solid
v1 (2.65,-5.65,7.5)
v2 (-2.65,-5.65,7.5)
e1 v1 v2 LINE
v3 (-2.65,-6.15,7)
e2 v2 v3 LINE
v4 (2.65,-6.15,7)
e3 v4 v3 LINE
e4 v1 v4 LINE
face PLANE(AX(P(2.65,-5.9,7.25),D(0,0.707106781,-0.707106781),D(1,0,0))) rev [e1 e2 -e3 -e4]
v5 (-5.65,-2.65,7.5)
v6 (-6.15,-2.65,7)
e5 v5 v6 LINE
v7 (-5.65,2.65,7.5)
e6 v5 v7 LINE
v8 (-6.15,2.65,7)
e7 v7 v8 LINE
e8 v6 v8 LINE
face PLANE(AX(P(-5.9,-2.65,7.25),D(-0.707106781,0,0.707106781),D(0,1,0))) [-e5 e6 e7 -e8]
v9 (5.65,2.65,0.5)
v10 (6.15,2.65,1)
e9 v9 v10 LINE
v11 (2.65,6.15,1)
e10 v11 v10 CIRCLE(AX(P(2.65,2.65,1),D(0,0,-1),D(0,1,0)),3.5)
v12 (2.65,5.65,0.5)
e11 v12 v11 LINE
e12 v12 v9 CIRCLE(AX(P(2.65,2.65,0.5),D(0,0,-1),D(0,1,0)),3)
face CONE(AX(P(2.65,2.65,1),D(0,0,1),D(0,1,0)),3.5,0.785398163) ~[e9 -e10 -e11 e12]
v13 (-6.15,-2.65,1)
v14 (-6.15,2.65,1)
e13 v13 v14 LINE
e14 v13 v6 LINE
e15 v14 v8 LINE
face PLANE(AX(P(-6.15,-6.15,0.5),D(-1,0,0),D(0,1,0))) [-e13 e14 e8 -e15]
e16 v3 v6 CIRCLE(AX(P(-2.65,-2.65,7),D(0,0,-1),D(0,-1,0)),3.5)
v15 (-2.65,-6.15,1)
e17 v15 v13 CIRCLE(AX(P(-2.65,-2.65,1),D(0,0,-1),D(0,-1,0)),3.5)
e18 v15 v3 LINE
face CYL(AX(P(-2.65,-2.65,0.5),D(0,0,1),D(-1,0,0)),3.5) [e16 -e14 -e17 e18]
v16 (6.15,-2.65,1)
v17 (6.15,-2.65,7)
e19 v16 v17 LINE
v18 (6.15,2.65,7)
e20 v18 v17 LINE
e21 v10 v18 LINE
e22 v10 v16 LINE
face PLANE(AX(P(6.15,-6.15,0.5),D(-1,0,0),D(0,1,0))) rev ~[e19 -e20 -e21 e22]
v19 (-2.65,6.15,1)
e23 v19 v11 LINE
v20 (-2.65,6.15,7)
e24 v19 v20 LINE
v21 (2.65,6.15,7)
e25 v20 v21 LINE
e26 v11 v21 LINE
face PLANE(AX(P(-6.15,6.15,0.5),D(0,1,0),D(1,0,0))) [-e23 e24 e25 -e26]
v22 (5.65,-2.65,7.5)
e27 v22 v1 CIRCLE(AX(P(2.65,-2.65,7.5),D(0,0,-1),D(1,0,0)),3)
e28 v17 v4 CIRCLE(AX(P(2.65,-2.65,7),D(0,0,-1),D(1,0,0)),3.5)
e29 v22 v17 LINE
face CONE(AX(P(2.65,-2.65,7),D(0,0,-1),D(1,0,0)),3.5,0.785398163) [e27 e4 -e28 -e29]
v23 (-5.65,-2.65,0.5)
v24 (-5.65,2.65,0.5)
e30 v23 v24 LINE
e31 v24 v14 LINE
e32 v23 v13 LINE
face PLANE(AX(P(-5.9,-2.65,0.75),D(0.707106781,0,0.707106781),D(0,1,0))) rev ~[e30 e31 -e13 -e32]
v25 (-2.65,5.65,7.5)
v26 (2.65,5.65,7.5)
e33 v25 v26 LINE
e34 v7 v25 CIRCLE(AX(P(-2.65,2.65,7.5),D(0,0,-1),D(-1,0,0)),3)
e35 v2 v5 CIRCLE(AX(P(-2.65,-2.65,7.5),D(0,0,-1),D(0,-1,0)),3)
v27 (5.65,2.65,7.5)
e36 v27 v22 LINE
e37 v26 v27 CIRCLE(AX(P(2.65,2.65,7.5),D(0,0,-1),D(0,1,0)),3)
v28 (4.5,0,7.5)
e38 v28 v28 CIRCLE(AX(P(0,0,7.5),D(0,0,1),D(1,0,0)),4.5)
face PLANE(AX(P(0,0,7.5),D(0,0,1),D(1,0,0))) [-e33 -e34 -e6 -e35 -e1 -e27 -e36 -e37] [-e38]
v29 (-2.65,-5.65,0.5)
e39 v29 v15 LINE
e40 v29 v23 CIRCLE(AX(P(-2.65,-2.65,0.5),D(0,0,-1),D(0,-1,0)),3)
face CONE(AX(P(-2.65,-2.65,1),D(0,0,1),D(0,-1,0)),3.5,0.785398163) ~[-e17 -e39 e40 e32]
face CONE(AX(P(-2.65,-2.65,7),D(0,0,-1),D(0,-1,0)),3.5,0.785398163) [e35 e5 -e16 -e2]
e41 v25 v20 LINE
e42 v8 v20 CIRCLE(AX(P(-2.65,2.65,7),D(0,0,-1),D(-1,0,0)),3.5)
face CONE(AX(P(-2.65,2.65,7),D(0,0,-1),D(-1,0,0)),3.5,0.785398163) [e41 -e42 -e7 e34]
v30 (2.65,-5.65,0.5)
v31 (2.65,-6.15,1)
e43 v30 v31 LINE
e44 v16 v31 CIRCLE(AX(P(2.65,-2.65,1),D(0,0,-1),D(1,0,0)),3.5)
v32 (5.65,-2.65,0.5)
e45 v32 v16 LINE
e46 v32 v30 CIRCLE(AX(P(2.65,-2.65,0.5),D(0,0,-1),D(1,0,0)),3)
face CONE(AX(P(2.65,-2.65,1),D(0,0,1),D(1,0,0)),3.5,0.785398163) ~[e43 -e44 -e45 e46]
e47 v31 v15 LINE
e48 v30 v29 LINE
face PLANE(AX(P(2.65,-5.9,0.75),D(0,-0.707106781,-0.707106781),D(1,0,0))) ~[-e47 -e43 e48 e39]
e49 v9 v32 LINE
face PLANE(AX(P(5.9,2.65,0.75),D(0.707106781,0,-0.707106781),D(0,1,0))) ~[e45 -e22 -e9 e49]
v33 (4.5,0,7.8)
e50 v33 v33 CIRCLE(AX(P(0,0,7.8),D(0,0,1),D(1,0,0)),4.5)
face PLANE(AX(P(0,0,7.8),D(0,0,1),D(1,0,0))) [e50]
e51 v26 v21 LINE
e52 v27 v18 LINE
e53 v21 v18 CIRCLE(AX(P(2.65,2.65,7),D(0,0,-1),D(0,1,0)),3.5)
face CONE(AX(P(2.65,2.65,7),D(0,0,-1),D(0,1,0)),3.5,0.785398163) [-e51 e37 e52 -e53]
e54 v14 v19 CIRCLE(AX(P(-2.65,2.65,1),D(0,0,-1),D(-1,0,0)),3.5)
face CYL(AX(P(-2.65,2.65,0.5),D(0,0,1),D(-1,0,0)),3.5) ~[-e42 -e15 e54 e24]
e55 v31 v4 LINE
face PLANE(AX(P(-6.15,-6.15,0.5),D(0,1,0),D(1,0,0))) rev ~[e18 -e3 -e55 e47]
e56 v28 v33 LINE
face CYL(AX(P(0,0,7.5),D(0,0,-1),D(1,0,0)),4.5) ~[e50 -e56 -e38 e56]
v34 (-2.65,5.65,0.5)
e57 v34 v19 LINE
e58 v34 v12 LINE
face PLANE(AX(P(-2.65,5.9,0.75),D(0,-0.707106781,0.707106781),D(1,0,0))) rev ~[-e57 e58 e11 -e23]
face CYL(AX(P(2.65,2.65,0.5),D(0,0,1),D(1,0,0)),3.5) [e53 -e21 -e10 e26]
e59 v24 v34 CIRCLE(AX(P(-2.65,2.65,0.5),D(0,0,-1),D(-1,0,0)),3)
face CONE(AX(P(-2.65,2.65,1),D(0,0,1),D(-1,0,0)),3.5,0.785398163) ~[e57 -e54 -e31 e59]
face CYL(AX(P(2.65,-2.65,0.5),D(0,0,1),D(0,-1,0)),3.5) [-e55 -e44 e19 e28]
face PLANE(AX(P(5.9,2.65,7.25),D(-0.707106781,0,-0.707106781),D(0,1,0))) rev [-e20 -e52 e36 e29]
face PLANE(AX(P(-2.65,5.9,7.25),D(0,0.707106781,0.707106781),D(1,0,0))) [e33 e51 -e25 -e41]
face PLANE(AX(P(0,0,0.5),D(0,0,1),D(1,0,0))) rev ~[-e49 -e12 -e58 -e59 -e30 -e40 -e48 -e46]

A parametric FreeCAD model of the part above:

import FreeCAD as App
import Part
import Sketcher

V = App.Vector
Q = App.Units.Quantity


def edges_at(feature, points):
    """Names of the edges that pass closest to the given points."""
    edges = feature.Shape.Edges
    near = lambda p: min(range(len(edges)), key=lambda i: edges[i].distToShape(Part.Vertex(*p))[0])
    return sorted({f"Edge{near(p) + 1}" for p in points})


def add_polygon(sketch, points):
    """Adds a closed chain of lines whose ends are joined by coincident constraints."""
    first, n = sketch.GeometryCount, len(points)
    for a, b in zip(points, points[1:] + points[:1]):
        sketch.addGeometry(Part.LineSegment(App.Vector(*a, 0), App.Vector(*b, 0)), False)
    for i in range(n):
        sketch.addConstraint(Sketcher.Constraint("Coincident", first + i, 2, first + (i + 1) % n, 1))

doc = App.newDocument("Part")
body = doc.addObject("PartDesign::Body", "Body")

# Sketch on XY plane
sketch1 = body.newObject("Sketcher::SketchObject", "Sketch")
sketch1.AttachmentSupport = (doc.getObject("XY_Plane"), [""])
sketch1.MapMode = "FlatFace"
sketch1.AttachmentOffset = App.Placement(V(0, 0, 0.5), App.Rotation())
add_polygon(sketch1, [(-6, 6), (-6, -6), (6, -6), (6, 6)])  # lines 0-3
sketch1.addConstraint([
    Sketcher.Constraint("Vertical", 0),
    Sketcher.Constraint("Horizontal", 1),
    Sketcher.Constraint("Vertical", 2),
    Sketcher.Constraint("Horizontal", 3),
    Sketcher.Constraint("Symmetric", 0, 2, 2, 2, -1, 1),
    Sketcher.Constraint("Equal", 3, 0),
    Sketcher.Constraint("DistanceX", 1, 1, 1, 2, Q("12.3 mm")),
])
pad1 = body.newObject("PartDesign::Pad", "Pad")
pad1.Profile = sketch1
pad1.Length = 7
doc.recompute()

fillet = body.newObject("PartDesign::Fillet", "Fillet")
fillet.Base = (pad1, edges_at(pad1, [
    (6.15, 6.15, 4),
    (6.15, -6.15, 4),
    (-6.15, 6.15, 4),
    (-6.15, -6.15, 4),
]))
fillet.Radius = 3.5
doc.recompute()

chamfer = body.newObject("PartDesign::Chamfer", "Chamfer")
chamfer.Base = (fillet, edges_at(fillet, [
    (0, 6.15, 7.5),
    (-5.125, 5.125, 7.5),
    (5.125, 5.125, 7.5),
    (-6.15, 0, 7.5),
    (6.15, 0, 7.5),
    (-5.125, -5.125, 7.5),
    (5.125, -5.125, 7.5),
    (0, -6.15, 7.5),
    (0, 6.15, 0.5),
    (-5.125, 5.125, 0.5),
    (5.125, 5.125, 0.5),
    (-6.15, 0, 0.5),
    (6.15, 0, 0.5),
    (-5.125, -5.125, 0.5),
    (5.125, -5.125, 0.5),
    (0, -6.15, 0.5),
]))
chamfer.Size = 0.5

# Sketch on XY plane
sketch2 = body.newObject("Sketcher::SketchObject", "Sketch001")
sketch2.AttachmentSupport = (doc.getObject("XY_Plane"), [""])
sketch2.MapMode = "FlatFace"
sketch2.AttachmentOffset = App.Placement(V(0, 0, 7.5), App.Rotation())
sketch2.addGeometry(Part.Circle(V(0, 0, 0), V(0, 0, 1), 4.5), False)
sketch2.addConstraint([
    Sketcher.Constraint("Coincident", 0, 3, -1, 1),
    Sketcher.Constraint("Diameter", 0, Q("9 mm")),
])
pad2 = body.newObject("PartDesign::Pad", "Pad001")
pad2.Profile = sketch2
pad2.Length = 0.3

doc.recompute()
